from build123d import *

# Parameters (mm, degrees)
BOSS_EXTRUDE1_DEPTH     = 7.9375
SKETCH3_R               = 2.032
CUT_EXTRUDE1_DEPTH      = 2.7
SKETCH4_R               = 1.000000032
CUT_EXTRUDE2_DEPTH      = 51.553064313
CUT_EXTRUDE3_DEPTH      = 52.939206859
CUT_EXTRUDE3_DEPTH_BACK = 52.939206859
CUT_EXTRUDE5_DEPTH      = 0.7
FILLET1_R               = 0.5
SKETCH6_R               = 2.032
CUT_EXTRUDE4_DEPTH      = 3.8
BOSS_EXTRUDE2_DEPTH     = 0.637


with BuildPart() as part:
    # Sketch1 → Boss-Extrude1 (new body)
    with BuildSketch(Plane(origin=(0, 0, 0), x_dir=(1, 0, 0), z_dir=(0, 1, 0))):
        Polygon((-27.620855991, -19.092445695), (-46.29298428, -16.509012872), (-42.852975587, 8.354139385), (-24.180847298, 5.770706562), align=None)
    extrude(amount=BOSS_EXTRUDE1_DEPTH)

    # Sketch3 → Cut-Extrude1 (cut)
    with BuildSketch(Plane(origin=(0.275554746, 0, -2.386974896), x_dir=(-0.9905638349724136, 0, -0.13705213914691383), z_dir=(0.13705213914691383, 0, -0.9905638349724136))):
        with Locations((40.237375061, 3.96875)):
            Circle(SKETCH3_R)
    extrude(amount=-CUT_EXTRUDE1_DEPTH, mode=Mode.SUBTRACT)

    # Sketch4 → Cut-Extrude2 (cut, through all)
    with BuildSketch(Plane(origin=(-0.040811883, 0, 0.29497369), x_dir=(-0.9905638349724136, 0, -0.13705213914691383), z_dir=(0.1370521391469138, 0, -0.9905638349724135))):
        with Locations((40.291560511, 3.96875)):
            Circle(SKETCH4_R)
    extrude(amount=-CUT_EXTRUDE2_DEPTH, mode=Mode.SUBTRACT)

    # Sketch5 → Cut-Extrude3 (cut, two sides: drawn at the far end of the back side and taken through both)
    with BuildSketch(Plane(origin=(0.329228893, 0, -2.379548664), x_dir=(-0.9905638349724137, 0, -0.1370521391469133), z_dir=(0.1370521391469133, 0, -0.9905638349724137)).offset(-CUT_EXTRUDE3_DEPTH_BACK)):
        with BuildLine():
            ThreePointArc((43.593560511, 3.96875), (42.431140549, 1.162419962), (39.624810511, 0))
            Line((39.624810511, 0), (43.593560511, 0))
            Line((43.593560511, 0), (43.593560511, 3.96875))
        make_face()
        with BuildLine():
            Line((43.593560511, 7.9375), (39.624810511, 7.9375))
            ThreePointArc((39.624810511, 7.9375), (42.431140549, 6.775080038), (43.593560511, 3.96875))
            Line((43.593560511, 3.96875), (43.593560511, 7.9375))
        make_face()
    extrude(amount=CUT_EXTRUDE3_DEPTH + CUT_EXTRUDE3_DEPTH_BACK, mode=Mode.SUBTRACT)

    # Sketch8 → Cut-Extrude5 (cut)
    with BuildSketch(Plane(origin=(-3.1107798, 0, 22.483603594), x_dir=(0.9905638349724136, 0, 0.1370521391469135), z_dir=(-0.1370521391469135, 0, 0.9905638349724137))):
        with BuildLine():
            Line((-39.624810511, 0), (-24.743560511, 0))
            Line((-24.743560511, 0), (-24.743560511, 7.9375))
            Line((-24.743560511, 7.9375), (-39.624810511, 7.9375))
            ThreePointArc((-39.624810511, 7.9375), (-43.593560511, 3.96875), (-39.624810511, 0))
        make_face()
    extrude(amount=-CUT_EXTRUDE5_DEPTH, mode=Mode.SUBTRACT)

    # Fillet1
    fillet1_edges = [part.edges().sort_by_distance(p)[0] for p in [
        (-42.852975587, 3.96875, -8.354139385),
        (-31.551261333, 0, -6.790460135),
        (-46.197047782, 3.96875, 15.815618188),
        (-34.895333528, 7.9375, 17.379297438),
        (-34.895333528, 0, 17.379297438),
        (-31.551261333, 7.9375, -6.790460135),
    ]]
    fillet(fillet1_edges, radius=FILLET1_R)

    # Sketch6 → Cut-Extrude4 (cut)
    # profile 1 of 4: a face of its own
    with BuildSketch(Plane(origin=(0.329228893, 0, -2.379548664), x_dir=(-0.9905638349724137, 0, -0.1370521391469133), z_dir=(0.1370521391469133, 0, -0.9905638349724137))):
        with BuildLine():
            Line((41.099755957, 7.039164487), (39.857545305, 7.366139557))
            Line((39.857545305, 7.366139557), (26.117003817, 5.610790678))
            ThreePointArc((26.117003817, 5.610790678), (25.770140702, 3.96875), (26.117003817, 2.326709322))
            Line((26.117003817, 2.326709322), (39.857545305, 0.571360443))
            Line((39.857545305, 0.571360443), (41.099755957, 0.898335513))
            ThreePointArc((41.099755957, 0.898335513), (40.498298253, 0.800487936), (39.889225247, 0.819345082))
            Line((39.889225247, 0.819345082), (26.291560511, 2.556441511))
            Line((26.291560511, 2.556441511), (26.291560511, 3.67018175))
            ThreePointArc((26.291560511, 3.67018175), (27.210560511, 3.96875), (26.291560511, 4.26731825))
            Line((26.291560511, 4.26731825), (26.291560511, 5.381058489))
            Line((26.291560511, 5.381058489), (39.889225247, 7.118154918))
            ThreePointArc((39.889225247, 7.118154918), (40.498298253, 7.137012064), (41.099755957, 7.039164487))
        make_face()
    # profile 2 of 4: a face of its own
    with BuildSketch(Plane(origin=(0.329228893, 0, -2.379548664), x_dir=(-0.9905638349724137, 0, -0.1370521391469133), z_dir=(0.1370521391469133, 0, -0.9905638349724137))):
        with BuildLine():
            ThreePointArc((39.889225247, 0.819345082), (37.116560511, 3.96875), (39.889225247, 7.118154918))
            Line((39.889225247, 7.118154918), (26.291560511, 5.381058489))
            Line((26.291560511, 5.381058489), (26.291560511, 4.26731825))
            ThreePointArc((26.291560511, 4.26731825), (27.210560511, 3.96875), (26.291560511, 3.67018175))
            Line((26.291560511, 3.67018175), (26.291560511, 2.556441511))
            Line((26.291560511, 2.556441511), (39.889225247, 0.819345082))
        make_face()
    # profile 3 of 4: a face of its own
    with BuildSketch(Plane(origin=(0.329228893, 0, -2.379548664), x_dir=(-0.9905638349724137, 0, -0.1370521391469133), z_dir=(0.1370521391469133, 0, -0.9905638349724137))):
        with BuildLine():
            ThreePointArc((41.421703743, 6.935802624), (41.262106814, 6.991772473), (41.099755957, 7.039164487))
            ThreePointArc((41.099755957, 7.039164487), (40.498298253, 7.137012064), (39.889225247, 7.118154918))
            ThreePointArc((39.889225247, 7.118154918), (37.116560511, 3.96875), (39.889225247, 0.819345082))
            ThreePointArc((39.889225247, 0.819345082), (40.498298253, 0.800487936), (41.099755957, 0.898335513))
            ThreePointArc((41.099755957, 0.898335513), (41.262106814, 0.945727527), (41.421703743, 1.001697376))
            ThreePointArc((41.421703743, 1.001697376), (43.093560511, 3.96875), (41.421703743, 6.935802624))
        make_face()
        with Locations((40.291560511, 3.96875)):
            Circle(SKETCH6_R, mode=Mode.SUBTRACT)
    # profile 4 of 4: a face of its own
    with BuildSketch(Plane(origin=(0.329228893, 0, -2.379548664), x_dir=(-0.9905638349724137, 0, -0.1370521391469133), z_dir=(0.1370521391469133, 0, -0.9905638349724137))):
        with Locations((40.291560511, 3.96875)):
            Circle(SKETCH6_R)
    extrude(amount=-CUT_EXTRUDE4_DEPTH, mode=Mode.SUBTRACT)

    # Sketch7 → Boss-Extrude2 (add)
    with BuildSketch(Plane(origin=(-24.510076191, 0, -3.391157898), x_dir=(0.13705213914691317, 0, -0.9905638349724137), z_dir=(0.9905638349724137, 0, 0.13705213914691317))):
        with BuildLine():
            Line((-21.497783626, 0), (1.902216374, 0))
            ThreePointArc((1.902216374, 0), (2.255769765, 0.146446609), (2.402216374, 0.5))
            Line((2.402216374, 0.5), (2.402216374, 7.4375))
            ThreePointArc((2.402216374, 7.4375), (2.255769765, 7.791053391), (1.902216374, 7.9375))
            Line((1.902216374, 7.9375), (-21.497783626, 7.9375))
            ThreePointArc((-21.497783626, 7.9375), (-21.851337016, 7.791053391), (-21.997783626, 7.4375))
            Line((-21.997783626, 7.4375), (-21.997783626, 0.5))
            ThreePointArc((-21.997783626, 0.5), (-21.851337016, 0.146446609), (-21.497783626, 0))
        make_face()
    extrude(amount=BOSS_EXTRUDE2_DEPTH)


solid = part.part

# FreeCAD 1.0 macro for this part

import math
import FreeCAD as App
import Part
import Sketcher

V = App.Vector
Q = App.Units.Quantity


def edges_at(feature, points):
    """Names of the edges that pass closest to the given points."""
    edges = feature.Shape.Edges
    near = lambda p: min(range(len(edges)), key=lambda i: edges[i].distToShape(Part.Vertex(*p))[0])
    return sorted({f"Edge{near(p) + 1}" for p in points})

doc = App.newDocument("Part")
params = doc.addObject("Spreadsheet::Sheet", "Params")
for row, (alias, value) in enumerate([
    ("sketch1_length", "25.1 mm"),
    ("sketch1_length2", "18.85 mm"),
    ("pad1_length", "7.9375 mm"),
    ("pocket1_length", "2.7 mm"),
    ("sketch3_diameter", "2 mm"),
    ("pocket4_length", "0.7 mm"),
    ("fillet_radius", "0.5 mm"),
    ("pocket5_length", "3.8 mm"),
    ("sketch7_radius", "0.5 mm"),
    ("sketch7_width", "23.4 mm"),
    ("pad2_length", "0.637 mm"),
], start=1):
    params.set(f"A{row}", alias)
    params.set(f"B{row}", "=" + value)
    params.setAlias(f"B{row}", alias)

body = doc.addObject("PartDesign::Body", "Body")

sketch1 = body.newObject("Sketcher::SketchObject", "Sketch")
sketch1.AttachmentSupport = (doc.getObject("XZ_Plane"), [""])
sketch1.MapMode = "FlatFace"
sketch1.addGeometry(Part.LineSegment(V(-46.292984, 16.509013, 0), V(-27.620856, 19.092446, 0)), False)
sketch1.addGeometry(Part.LineSegment(V(-27.620856, 19.092446, 0), V(-24.180847, -5.770707, 0)), False)
sketch1.addGeometry(Part.LineSegment(V(-24.180847, -5.770707, 0), V(-42.852976, -8.354139, 0)), False)
sketch1.addGeometry(Part.LineSegment(V(-42.852976, -8.354139, 0), V(-46.292984, 16.509013, 0)), False)
sketch1.addConstraint(Sketcher.Constraint("Coincident", 0, 2, 1, 1))
sketch1.addConstraint(Sketcher.Constraint("Coincident", 1, 2, 2, 1))
sketch1.addConstraint(Sketcher.Constraint("Coincident", 2, 2, 3, 1))
sketch1.addConstraint(Sketcher.Constraint("Coincident", 3, 2, 0, 1))
sketch1.addConstraint(Sketcher.Constraint("Perpendicular", 0, 1))
sketch1.addConstraint(Sketcher.Constraint("Perpendicular", 1, 2))
sketch1.addConstraint(Sketcher.Constraint("Perpendicular", 2, 3))
sketch1.addConstraint(Sketcher.Constraint("Distance", 1, Q("25.1 mm")))
sketch1.addConstraint(Sketcher.Constraint("Distance", 0, Q("18.85 mm")))
sketch1.addConstraint(Sketcher.Constraint("DistanceY", 2, 2, -1, 1, Q("8.354139 mm")))
sketch1.addConstraint(Sketcher.Constraint("DistanceX", 0, 2, 1, 2, Q("3.440009 mm")))
sketch1.addConstraint(Sketcher.Constraint("DistanceX", 0, 2, -1, 1, Q("27.620856 mm")))
sketch1.setExpression("Constraints[7]", "Params.sketch1_length")
sketch1.setExpression("Constraints[8]", "Params.sketch1_length2")
pad1 = body.newObject("PartDesign::Pad", "Pad")
pad1.Profile = sketch1
pad1.setExpression("Length", "Params.pad1_length")
pad1.Reversed = True

sketch2 = body.newObject("Sketcher::SketchObject", "Sketch001")
sketch2.Placement = App.Placement(V(0.275555, 0, -2.386975), App.Rotation(V(-0.990563835, 0, -0.137052139), V(0, 1, 0), V(0.137052139, 0, -0.990563835), "ZXY"))
sketch2.addGeometry(Part.Circle(V(40.237375, 3.96875, 0), V(0, 0, 1), 2.032), False)
sketch2.addConstraint(Sketcher.Constraint("Diameter", 0, Q("4.064 mm")))
sketch2.addConstraint(Sketcher.Constraint("DistanceY", -1, 1, 0, 3, Q("3.96875 mm")))
sketch2.addConstraint(Sketcher.Constraint("DistanceX", -1, 1, 0, 3, Q("40.237375 mm")))
pocket1 = body.newObject("PartDesign::Pocket", "Pocket")
pocket1.Profile = sketch2
pocket1.setExpression("Length", "Params.pocket1_length")

sketch3 = body.newObject("Sketcher::SketchObject", "Sketch002")
sketch3.Placement = App.Placement(V(-0.040812, 0, 0.294974), App.Rotation(V(-0.990563835, 0, -0.137052139), V(0, 1, 0), V(0.137052139, 0, -0.990563835), "ZXY"))
sketch3.addGeometry(Part.Circle(V(40.291561, 3.96875, 0), V(0, 0, 1), 1), False)
sketch3.addConstraint(Sketcher.Constraint("Diameter", 0, Q("2 mm")))
sketch3.addConstraint(Sketcher.Constraint("DistanceX", -1, 1, 0, 3, Q("40.291561 mm")))
sketch3.addConstraint(Sketcher.Constraint("DistanceY", -1, 1, 0, 3, Q("3.96875 mm")))
sketch3.setExpression("Constraints[0]", "Params.sketch3_diameter")
pocket2 = body.newObject("PartDesign::Pocket", "Pocket001")
pocket2.Profile = sketch3
pocket2.Type = "ThroughAll"

sketch4 = body.newObject("Sketcher::SketchObject", "Sketch003")
sketch4.Placement = App.Placement(V(0.329229, 0, -2.379549), App.Rotation(V(-0.990563835, 0, -0.137052139), V(0, 1, 0), V(0.137052139, 0, -0.990563835), "ZXY"))
sketch4.addGeometry(Part.ArcOfCircle(Part.Circle(V(39.624811, 3.96875, 0), V(0, 0, 1), 3.96875), math.radians(-90), math.radians(0)), False)
sketch4.addGeometry(Part.LineSegment(V(39.624811, 0, 0), V(43.593561, 0, 0)), False)
sketch4.addGeometry(Part.LineSegment(V(43.593561, 0, 0), V(43.593561, 3.96875, 0)), False)
sketch4.addGeometry(Part.LineSegment(V(43.593561, 7.9375, 0), V(39.624811, 7.9375, 0)), False)
sketch4.addGeometry(Part.ArcOfCircle(Part.Circle(V(39.624811, 3.96875, 0), V(0, 0, 1), 3.96875), math.radians(0), math.radians(90)), False)
sketch4.addGeometry(Part.LineSegment(V(43.593561, 3.96875, 0), V(43.593561, 7.9375, 0)), False)
sketch4.addConstraint(Sketcher.Constraint("Tangent", 0, 1, 1, 1))
sketch4.addConstraint(Sketcher.Constraint("Coincident", 1, 2, 2, 1))
sketch4.addConstraint(Sketcher.Constraint("Tangent", 2, 2, 0, 2))
sketch4.addConstraint(Sketcher.Constraint("Tangent", 3, 2, 4, 2))
sketch4.addConstraint(Sketcher.Constraint("Tangent", 4, 1, 5, 1))
sketch4.addConstraint(Sketcher.Constraint("Coincident", 5, 2, 3, 1))
sketch4.addConstraint(Sketcher.Constraint("Horizontal", 1))
sketch4.addConstraint(Sketcher.Constraint("Vertical", 2))
sketch4.addConstraint(Sketcher.Constraint("Horizontal", 3))
sketch4.addConstraint(Sketcher.Constraint("Vertical", 5))
sketch4.addConstraint(Sketcher.Constraint("Coincident", 4, 3, 0, 3))
sketch4.addConstraint(Sketcher.Constraint("Equal", 0, 4))
sketch4.addConstraint(Sketcher.Constraint("PointOnObject", 0, 1, -1))
sketch4.addConstraint(Sketcher.Constraint("Radius", 0, Q("3.96875 mm")))
sketch4.addConstraint(Sketcher.Constraint("DistanceX", -1, 1, 0, 3, Q("39.624811 mm")))
pocket3 = body.newObject("PartDesign::Pocket", "Pocket002")
pocket3.Profile = sketch4
pocket3.Type = "ThroughAll"
pocket3.Midplane = True

sketch5 = body.newObject("Sketcher::SketchObject", "Sketch004")
sketch5.Placement = App.Placement(V(-3.11078, 0, 22.483604), App.Rotation(V(0.990563835, 0, 0.137052139), V(0, 1, 0), V(-0.137052139, 0, 0.990563835), "ZXY"))
sketch5.addGeometry(Part.LineSegment(V(-39.624811, 0, 0), V(-24.743561, 0, 0)), False)
sketch5.addGeometry(Part.LineSegment(V(-24.743561, 0, 0), V(-24.743561, 7.9375, 0)), False)
sketch5.addGeometry(Part.LineSegment(V(-24.743561, 7.9375, 0), V(-39.624811, 7.9375, 0)), False)
sketch5.addGeometry(Part.ArcOfCircle(Part.Circle(V(-39.624811, 3.96875, 0), V(0, 0, 1), 3.96875), math.radians(90), math.radians(270)), False)
sketch5.addConstraint(Sketcher.Constraint("Coincident", 0, 2, 1, 1))
sketch5.addConstraint(Sketcher.Constraint("Coincident", 1, 2, 2, 1))
sketch5.addConstraint(Sketcher.Constraint("Tangent", 2, 2, 3, 1))
sketch5.addConstraint(Sketcher.Constraint("Tangent", 3, 2, 0, 1))
sketch5.addConstraint(Sketcher.Constraint("Horizontal", 0))
sketch5.addConstraint(Sketcher.Constraint("Vertical", 1))
sketch5.addConstraint(Sketcher.Constraint("Horizontal", 2))
sketch5.addConstraint(Sketcher.Constraint("PointOnObject", 0, 2, -1))
sketch5.addConstraint(Sketcher.Constraint("Radius", 3, Q("3.96875 mm")))
sketch5.addConstraint(Sketcher.Constraint("DistanceX", 0, 1, 0, 2, Q("14.88125 mm")))
sketch5.addConstraint(Sketcher.Constraint("DistanceX", 3, 3, -1, 1, Q("39.624811 mm")))
pocket4 = body.newObject("PartDesign::Pocket", "Pocket003")
pocket4.Profile = sketch5
pocket4.setExpression("Length", "Params.pocket4_length")
doc.recompute()

fillet = body.newObject("PartDesign::Fillet", "Fillet")
fillet.Base = (pocket4, edges_at(pocket4, [
    (-41.702, 1.162, -8.195),
    (-31.551, 0, -6.79),
    (-45.046, 1.162, 15.975),
    (-34.895, 7.938, 17.379),
    (-34.895, 0, 17.379),
    (-31.551, 7.938, -6.79),
]))
fillet.setExpression("Radius", "Params.fillet_radius")

sketch6 = body.newObject("Sketcher::SketchObject", "Sketch005")
sketch6.Placement = App.Placement(V(0.329229, 0, -2.379549), App.Rotation(V(-0.990563835, 0, -0.137052139), V(0, 1, 0), V(0.137052139, 0, -0.990563835), "ZXY"))
sketch6.addGeometry(Part.LineSegment(V(41.099756, 7.039164, 0), V(39.857545, 7.36614, 0)), False)
sketch6.addGeometry(Part.LineSegment(V(39.857545, 7.36614, 0), V(26.117004, 5.610791, 0)), False)
sketch6.addGeometry(Part.ArcOfCircle(Part.Circle(V(29.830261, 3.96875, 0), V(0, 0, 1), 4.06012), math.radians(156.144488), math.radians(203.855512)), False)
sketch6.addGeometry(Part.LineSegment(V(26.117004, 2.326709, 0), V(39.857545, 0.57136, 0)), False)
sketch6.addGeometry(Part.LineSegment(V(39.857545, 0.57136, 0), V(41.099756, 0.898336, 0)), False)
sketch6.addGeometry(Part.ArcOfCircle(Part.Circle(V(40.29156, 3.96875, 0), V(0, 0, 1), 3.175), math.radians(-75.253093), math.radians(-69.148283)), False)
sketch6.addGeometry(Part.ArcOfCircle(Part.Circle(V(39.624811, 3.96875, 0), V(0, 0, 1), 3.46875), math.radians(-58.80025), math.radians(58.80025)), False)
sketch6.addGeometry(Part.ArcOfCircle(Part.Circle(V(40.29156, 3.96875, 0), V(0, 0, 1), 3.175), math.radians(69.148283), math.radians(75.253093)), False)
sketch6.addConstraint(Sketcher.Constraint("Coincident", 0, 2, 1, 1))
sketch6.addConstraint(Sketcher.Constraint("Coincident", 1, 2, 2, 1))
sketch6.addConstraint(Sketcher.Constraint("Coincident", 2, 2, 3, 1))
sketch6.addConstraint(Sketcher.Constraint("Coincident", 3, 2, 4, 1))
sketch6.addConstraint(Sketcher.Constraint("Tangent", 4, 2, 5, 1))
sketch6.addConstraint(Sketcher.Constraint("Coincident", 5, 2, 6, 1))
sketch6.addConstraint(Sketcher.Constraint("Coincident", 6, 2, 7, 1))
sketch6.addConstraint(Sketcher.Constraint("Tangent", 7, 2, 0, 1))
sketch6.addConstraint(Sketcher.Constraint("Coincident", 7, 3, 5, 3))
sketch6.addConstraint(Sketcher.Constraint("Equal", 5, 7))
sketch6.addConstraint(Sketcher.Constraint("Horizontal", 2, 3, 5, 3))
sketch6.addConstraint(Sketcher.Constraint("Horizontal", 5, 3, 6, 3))
sketch6.addConstraint(Sketcher.Constraint("Vertical", 1, 2, 2, 2))
sketch6.addConstraint(Sketcher.Constraint("Vertical", 0, 2, 3, 2))
sketch6.addConstraint(Sketcher.Constraint("Vertical", 4, 2, 7, 2))
sketch6.addConstraint(Sketcher.Constraint("Radius", 5, Q("3.175 mm")))
sketch6.addConstraint(Sketcher.Constraint("Radius", 2, Q("4.06012 mm")))
sketch6.addConstraint(Sketcher.Constraint("Radius", 6, Q("3.46875 mm")))
sketch6.addConstraint(Sketcher.Constraint("DistanceX", 2, 3, 5, 3, Q("10.4613 mm")))
sketch6.addConstraint(Sketcher.Constraint("Distance", 1, Q("13.85221 mm")))
sketch6.addConstraint(Sketcher.Constraint("DistanceX", -1, 1, 2, 3, Q("29.830261 mm")))
sketch6.addConstraint(Sketcher.Constraint("DistanceY", -1, 1, 2, 3, Q("3.96875 mm")))
sketch6.addConstraint(Sketcher.Constraint("DistanceX", -1, 1, 6, 3, Q("39.624811 mm")))
sketch6.addConstraint(Sketcher.Constraint("DistanceY", -1, 1, 0, 2, Q("7.36614 mm")))
sketch6.addConstraint(Sketcher.Constraint("DistanceY", -1, 1, 1, 2, Q("5.610791 mm")))
pocket5 = body.newObject("PartDesign::Pocket", "Pocket004")
pocket5.Profile = sketch6
pocket5.setExpression("Length", "Params.pocket5_length")

sketch7 = body.newObject("Sketcher::SketchObject", "Sketch006")
sketch7.Placement = App.Placement(V(-24.510076, 0, -3.391158), App.Rotation(V(0.137052139, 0, -0.990563835), V(0, 1, 0), V(0.990563835, 0, 0.137052139), "ZXY"))
sketch7.addGeometry(Part.LineSegment(V(-21.497784, 0, 0), V(1.902216, 0, 0)), False)
sketch7.addGeometry(Part.ArcOfCircle(Part.Circle(V(1.902216, 0.5, 0), V(0, 0, 1), 0.5), math.radians(-90), math.radians(0)), False)
sketch7.addGeometry(Part.LineSegment(V(2.402216, 0.5, 0), V(2.402216, 7.4375, 0)), False)
sketch7.addGeometry(Part.ArcOfCircle(Part.Circle(V(1.902216, 7.4375, 0), V(0, 0, 1), 0.5), math.radians(0), math.radians(90)), False)
sketch7.addGeometry(Part.LineSegment(V(1.902216, 7.9375, 0), V(-21.497784, 7.9375, 0)), False)
sketch7.addGeometry(Part.ArcOfCircle(Part.Circle(V(-21.497784, 7.4375, 0), V(0, 0, 1), 0.5), math.radians(90), math.radians(180)), False)
sketch7.addGeometry(Part.LineSegment(V(-21.997784, 7.4375, 0), V(-21.997784, 0.5, 0)), False)
sketch7.addGeometry(Part.ArcOfCircle(Part.Circle(V(-21.497784, 0.5, 0), V(0, 0, 1), 0.5), math.radians(180), math.radians(270)), False)
sketch7.addConstraint(Sketcher.Constraint("Tangent", 0, 2, 1, 1))
sketch7.addConstraint(Sketcher.Constraint("Tangent", 1, 2, 2, 1))
sketch7.addConstraint(Sketcher.Constraint("Tangent", 2, 2, 3, 1))
sketch7.addConstraint(Sketcher.Constraint("Tangent", 3, 2, 4, 1))
sketch7.addConstraint(Sketcher.Constraint("Tangent", 4, 2, 5, 1))
sketch7.addConstraint(Sketcher.Constraint("Tangent", 5, 2, 6, 1))
sketch7.addConstraint(Sketcher.Constraint("Tangent", 6, 2, 7, 1))
sketch7.addConstraint(Sketcher.Constraint("Tangent", 7, 2, 0, 1))
sketch7.addConstraint(Sketcher.Constraint("Horizontal", 0))
sketch7.addConstraint(Sketcher.Constraint("Vertical", 2))
sketch7.addConstraint(Sketcher.Constraint("Horizontal", 4))
sketch7.addConstraint(Sketcher.Constraint("Vertical", 6))
sketch7.addConstraint(Sketcher.Constraint("Equal", 1, 3))
sketch7.addConstraint(Sketcher.Constraint("Equal", 3, 5))
sketch7.addConstraint(Sketcher.Constraint("Equal", 5, 7))
sketch7.addConstraint(Sketcher.Constraint("PointOnObject", 0, 2, -1))
sketch7.addConstraint(Sketcher.Constraint("Radius", 1, Q("0.5 mm")))
sketch7.addConstraint(Sketcher.Constraint("DistanceX", 0, 1, 0, 2, Q("23.4 mm")))
sketch7.addConstraint(Sketcher.Constraint("DistanceY", 2, 1, 2, 2, Q("6.9375 mm")))
sketch7.addConstraint(Sketcher.Constraint("DistanceX", -1, 1, 1, 3, Q("1.902216 mm")))
sketch7.setExpression("Constraints[16]", "Params.sketch7_radius")
sketch7.setExpression("Constraints[17]", "Params.sketch7_width")
pad2 = body.newObject("PartDesign::Pad", "Pad001")
pad2.Profile = sketch7
pad2.setExpression("Length", "Params.pad2_length")

doc.recompute()
